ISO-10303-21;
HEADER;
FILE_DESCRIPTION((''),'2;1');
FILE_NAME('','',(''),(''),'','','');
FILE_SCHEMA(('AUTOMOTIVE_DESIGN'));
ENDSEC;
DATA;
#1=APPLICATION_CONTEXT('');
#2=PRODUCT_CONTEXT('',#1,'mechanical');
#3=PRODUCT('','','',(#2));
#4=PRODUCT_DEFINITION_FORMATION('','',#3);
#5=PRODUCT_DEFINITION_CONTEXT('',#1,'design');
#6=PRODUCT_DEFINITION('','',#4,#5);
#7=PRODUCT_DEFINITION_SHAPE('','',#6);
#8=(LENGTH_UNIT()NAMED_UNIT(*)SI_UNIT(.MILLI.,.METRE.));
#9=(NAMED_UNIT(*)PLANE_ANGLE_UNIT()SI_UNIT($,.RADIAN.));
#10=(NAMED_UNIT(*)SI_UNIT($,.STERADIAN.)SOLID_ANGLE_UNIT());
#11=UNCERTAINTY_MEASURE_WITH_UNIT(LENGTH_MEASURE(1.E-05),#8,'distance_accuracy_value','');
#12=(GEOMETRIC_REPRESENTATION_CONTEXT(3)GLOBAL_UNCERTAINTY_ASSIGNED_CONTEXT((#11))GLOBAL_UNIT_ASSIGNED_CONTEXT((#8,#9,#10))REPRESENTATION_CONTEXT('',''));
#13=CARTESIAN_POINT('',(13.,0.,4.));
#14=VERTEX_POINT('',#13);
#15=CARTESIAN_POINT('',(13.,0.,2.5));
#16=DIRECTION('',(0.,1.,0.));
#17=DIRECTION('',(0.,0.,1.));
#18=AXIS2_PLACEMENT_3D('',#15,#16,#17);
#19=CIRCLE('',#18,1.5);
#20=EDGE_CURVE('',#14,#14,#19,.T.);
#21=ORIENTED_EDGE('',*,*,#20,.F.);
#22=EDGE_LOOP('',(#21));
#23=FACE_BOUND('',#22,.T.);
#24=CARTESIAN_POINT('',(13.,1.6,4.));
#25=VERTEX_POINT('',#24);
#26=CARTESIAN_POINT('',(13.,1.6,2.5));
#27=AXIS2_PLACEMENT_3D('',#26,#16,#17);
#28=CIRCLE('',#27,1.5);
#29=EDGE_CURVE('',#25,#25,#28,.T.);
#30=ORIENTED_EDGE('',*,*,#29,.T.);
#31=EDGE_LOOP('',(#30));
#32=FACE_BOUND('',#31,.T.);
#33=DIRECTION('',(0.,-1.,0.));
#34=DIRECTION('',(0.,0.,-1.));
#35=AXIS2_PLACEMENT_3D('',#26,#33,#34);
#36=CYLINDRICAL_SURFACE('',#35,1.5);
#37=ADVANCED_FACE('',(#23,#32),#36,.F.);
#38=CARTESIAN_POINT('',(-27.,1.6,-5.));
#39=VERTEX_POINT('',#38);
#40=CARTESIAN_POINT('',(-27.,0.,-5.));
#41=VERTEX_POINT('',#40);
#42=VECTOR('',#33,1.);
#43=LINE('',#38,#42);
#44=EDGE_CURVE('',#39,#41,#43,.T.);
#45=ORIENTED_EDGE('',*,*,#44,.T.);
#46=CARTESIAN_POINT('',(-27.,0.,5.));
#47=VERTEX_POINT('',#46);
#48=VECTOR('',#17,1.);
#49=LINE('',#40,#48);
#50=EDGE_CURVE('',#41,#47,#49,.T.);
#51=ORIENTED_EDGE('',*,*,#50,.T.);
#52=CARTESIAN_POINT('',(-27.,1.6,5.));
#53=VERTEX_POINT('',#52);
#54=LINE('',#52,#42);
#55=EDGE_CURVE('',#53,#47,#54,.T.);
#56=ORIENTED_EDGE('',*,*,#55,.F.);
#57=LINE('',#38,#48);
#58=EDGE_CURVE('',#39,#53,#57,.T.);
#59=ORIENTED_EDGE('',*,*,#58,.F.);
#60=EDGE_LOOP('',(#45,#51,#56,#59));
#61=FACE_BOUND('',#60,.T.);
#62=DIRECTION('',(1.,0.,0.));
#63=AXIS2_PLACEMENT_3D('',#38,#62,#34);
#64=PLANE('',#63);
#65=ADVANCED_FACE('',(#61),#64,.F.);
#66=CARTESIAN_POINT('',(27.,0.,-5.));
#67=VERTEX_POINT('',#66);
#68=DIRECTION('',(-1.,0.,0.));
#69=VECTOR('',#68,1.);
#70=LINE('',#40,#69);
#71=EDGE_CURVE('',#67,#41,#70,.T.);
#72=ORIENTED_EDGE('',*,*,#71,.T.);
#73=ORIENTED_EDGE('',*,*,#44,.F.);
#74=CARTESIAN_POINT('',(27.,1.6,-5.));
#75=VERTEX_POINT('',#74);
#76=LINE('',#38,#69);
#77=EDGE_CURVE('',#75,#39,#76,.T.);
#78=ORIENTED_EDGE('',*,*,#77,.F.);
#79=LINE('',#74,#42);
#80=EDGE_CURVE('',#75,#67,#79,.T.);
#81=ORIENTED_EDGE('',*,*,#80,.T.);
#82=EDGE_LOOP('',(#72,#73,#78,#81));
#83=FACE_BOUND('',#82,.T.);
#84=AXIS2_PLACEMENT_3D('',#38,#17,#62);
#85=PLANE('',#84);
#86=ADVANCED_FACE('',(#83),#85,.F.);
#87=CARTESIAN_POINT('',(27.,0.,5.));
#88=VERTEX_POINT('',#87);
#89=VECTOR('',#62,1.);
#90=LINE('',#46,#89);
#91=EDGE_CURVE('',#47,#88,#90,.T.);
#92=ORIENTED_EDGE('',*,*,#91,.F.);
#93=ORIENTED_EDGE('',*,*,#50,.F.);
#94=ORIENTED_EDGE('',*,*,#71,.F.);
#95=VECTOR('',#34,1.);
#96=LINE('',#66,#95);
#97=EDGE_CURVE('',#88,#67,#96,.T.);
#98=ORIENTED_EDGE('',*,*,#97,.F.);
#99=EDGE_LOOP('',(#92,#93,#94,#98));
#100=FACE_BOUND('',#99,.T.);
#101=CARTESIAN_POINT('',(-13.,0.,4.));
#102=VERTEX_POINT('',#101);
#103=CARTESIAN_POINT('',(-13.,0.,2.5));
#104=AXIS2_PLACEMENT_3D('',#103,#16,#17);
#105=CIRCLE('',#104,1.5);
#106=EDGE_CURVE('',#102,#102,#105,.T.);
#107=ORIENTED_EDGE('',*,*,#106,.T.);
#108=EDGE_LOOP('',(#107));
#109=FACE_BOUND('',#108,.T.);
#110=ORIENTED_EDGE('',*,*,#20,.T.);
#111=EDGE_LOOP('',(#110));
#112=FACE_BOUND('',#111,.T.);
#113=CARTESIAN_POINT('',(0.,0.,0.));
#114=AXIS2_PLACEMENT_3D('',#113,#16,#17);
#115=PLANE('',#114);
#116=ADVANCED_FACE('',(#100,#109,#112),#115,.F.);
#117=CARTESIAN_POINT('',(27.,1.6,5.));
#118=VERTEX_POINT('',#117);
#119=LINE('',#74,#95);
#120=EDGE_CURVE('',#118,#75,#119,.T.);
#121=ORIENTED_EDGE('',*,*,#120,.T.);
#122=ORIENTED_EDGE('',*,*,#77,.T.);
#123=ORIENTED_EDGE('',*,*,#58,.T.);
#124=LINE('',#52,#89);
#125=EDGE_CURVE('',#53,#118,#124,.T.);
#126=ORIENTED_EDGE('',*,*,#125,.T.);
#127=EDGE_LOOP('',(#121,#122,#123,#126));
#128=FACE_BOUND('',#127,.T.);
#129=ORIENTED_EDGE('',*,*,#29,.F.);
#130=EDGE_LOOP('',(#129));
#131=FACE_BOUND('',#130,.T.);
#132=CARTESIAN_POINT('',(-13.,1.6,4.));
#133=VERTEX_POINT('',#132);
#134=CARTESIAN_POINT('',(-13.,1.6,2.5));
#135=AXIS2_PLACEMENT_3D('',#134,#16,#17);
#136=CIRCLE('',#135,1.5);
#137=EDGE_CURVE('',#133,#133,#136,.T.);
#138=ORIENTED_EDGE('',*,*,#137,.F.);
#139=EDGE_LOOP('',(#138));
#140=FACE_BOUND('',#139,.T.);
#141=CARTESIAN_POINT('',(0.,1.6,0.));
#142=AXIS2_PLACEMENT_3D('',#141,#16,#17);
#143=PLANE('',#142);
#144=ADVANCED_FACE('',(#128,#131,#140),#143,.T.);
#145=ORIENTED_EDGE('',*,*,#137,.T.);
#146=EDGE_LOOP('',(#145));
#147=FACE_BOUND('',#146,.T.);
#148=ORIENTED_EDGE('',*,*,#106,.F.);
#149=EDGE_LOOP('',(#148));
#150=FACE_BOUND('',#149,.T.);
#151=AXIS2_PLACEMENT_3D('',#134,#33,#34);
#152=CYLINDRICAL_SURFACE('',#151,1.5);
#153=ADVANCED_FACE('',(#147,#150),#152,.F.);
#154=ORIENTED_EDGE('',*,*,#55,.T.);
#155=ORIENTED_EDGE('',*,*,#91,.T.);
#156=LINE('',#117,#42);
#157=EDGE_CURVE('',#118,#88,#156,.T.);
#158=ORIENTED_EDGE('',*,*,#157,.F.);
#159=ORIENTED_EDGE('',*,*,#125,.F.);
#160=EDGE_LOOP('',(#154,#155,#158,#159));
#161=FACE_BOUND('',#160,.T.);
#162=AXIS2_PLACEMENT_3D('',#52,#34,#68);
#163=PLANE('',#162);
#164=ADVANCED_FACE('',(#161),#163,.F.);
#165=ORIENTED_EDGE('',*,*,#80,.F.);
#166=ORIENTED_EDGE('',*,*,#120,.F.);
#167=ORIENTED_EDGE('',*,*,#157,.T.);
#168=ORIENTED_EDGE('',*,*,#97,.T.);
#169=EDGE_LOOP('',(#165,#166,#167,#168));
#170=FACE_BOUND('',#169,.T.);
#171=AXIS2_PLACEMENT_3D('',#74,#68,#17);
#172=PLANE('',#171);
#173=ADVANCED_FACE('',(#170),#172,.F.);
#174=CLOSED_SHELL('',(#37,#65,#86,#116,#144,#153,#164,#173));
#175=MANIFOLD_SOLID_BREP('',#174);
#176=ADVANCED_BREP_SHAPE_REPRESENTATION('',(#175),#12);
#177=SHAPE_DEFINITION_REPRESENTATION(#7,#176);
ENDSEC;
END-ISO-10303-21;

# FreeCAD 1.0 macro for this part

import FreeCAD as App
import Part
import Sketcher


def add_polygon(sketch, points):
    """Adds a closed chain of lines whose ends are joined by coincident constraints."""
    first, n = sketch.GeometryCount, len(points)
    for a, b in zip(points, points[1:] + points[:1]):
        sketch.addGeometry(Part.LineSegment(App.Vector(*a, 0), App.Vector(*b, 0)), False)
    for i in range(n):
        sketch.addConstraint(Sketcher.Constraint("Coincident", first + i, 2, first + (i + 1) % n, 1))

doc = App.newDocument("Part")
body = doc.addObject("PartDesign::Body", "Body")

# Sketch on XZ plane
sketch1 = body.newObject("Sketcher::SketchObject", "Sketch")
sketch1.AttachmentSupport = (doc.getObject("XZ_Plane"), [""])
sketch1.MapMode = "FlatFace"
add_polygon(sketch1, [(-27, -5), (-27, 5), (27, 5), (27, -5)])  # lines 0-3
sketch1.addGeometry(Part.Circle(App.Vector(-13, 2.5, 0), App.Vector(0, 0, 1), 1.5), False)  # 4
sketch1.addGeometry(Part.Circle(App.Vector(13, 2.5, 0), App.Vector(0, 0, 1), 1.5), False)  # 5
sketch1.addConstraint(Sketcher.Constraint("Vertical", 0))
sketch1.addConstraint(Sketcher.Constraint("Horizontal", 1))
sketch1.addConstraint(Sketcher.Constraint("Vertical", 2))
sketch1.addConstraint(Sketcher.Constraint("Horizontal", 3))
sketch1.addConstraint(Sketcher.Constraint("Equal", 4, 5))
sketch1.addConstraint(Sketcher.Constraint("Symmetric", 0, 2, 2, 2, -1, 1))
sketch1.addConstraint(Sketcher.Constraint("Symmetric", 4, 3, 5, 3, -2))
sketch1.addConstraint(Sketcher.Constraint("Diameter", 4, 3.0))
sketch1.addConstraint(Sketcher.Constraint("DistanceX", 1, 1, 1, 2, 54.0))
sketch1.addConstraint(Sketcher.Constraint("DistanceY", 0, 1, 0, 2, 10.0))
sketch1.addConstraint(Sketcher.Constraint("DistanceX", 4, 3, -1, 1, 13.0))
sketch1.addConstraint(Sketcher.Constraint("DistanceY", -1, 1, 4, 3, 2.5))
pad1 = body.newObject("PartDesign::Pad", "Pad")
pad1.Profile = sketch1
pad1.Length = 1.6
pad1.Reversed = True

doc.recompute()
